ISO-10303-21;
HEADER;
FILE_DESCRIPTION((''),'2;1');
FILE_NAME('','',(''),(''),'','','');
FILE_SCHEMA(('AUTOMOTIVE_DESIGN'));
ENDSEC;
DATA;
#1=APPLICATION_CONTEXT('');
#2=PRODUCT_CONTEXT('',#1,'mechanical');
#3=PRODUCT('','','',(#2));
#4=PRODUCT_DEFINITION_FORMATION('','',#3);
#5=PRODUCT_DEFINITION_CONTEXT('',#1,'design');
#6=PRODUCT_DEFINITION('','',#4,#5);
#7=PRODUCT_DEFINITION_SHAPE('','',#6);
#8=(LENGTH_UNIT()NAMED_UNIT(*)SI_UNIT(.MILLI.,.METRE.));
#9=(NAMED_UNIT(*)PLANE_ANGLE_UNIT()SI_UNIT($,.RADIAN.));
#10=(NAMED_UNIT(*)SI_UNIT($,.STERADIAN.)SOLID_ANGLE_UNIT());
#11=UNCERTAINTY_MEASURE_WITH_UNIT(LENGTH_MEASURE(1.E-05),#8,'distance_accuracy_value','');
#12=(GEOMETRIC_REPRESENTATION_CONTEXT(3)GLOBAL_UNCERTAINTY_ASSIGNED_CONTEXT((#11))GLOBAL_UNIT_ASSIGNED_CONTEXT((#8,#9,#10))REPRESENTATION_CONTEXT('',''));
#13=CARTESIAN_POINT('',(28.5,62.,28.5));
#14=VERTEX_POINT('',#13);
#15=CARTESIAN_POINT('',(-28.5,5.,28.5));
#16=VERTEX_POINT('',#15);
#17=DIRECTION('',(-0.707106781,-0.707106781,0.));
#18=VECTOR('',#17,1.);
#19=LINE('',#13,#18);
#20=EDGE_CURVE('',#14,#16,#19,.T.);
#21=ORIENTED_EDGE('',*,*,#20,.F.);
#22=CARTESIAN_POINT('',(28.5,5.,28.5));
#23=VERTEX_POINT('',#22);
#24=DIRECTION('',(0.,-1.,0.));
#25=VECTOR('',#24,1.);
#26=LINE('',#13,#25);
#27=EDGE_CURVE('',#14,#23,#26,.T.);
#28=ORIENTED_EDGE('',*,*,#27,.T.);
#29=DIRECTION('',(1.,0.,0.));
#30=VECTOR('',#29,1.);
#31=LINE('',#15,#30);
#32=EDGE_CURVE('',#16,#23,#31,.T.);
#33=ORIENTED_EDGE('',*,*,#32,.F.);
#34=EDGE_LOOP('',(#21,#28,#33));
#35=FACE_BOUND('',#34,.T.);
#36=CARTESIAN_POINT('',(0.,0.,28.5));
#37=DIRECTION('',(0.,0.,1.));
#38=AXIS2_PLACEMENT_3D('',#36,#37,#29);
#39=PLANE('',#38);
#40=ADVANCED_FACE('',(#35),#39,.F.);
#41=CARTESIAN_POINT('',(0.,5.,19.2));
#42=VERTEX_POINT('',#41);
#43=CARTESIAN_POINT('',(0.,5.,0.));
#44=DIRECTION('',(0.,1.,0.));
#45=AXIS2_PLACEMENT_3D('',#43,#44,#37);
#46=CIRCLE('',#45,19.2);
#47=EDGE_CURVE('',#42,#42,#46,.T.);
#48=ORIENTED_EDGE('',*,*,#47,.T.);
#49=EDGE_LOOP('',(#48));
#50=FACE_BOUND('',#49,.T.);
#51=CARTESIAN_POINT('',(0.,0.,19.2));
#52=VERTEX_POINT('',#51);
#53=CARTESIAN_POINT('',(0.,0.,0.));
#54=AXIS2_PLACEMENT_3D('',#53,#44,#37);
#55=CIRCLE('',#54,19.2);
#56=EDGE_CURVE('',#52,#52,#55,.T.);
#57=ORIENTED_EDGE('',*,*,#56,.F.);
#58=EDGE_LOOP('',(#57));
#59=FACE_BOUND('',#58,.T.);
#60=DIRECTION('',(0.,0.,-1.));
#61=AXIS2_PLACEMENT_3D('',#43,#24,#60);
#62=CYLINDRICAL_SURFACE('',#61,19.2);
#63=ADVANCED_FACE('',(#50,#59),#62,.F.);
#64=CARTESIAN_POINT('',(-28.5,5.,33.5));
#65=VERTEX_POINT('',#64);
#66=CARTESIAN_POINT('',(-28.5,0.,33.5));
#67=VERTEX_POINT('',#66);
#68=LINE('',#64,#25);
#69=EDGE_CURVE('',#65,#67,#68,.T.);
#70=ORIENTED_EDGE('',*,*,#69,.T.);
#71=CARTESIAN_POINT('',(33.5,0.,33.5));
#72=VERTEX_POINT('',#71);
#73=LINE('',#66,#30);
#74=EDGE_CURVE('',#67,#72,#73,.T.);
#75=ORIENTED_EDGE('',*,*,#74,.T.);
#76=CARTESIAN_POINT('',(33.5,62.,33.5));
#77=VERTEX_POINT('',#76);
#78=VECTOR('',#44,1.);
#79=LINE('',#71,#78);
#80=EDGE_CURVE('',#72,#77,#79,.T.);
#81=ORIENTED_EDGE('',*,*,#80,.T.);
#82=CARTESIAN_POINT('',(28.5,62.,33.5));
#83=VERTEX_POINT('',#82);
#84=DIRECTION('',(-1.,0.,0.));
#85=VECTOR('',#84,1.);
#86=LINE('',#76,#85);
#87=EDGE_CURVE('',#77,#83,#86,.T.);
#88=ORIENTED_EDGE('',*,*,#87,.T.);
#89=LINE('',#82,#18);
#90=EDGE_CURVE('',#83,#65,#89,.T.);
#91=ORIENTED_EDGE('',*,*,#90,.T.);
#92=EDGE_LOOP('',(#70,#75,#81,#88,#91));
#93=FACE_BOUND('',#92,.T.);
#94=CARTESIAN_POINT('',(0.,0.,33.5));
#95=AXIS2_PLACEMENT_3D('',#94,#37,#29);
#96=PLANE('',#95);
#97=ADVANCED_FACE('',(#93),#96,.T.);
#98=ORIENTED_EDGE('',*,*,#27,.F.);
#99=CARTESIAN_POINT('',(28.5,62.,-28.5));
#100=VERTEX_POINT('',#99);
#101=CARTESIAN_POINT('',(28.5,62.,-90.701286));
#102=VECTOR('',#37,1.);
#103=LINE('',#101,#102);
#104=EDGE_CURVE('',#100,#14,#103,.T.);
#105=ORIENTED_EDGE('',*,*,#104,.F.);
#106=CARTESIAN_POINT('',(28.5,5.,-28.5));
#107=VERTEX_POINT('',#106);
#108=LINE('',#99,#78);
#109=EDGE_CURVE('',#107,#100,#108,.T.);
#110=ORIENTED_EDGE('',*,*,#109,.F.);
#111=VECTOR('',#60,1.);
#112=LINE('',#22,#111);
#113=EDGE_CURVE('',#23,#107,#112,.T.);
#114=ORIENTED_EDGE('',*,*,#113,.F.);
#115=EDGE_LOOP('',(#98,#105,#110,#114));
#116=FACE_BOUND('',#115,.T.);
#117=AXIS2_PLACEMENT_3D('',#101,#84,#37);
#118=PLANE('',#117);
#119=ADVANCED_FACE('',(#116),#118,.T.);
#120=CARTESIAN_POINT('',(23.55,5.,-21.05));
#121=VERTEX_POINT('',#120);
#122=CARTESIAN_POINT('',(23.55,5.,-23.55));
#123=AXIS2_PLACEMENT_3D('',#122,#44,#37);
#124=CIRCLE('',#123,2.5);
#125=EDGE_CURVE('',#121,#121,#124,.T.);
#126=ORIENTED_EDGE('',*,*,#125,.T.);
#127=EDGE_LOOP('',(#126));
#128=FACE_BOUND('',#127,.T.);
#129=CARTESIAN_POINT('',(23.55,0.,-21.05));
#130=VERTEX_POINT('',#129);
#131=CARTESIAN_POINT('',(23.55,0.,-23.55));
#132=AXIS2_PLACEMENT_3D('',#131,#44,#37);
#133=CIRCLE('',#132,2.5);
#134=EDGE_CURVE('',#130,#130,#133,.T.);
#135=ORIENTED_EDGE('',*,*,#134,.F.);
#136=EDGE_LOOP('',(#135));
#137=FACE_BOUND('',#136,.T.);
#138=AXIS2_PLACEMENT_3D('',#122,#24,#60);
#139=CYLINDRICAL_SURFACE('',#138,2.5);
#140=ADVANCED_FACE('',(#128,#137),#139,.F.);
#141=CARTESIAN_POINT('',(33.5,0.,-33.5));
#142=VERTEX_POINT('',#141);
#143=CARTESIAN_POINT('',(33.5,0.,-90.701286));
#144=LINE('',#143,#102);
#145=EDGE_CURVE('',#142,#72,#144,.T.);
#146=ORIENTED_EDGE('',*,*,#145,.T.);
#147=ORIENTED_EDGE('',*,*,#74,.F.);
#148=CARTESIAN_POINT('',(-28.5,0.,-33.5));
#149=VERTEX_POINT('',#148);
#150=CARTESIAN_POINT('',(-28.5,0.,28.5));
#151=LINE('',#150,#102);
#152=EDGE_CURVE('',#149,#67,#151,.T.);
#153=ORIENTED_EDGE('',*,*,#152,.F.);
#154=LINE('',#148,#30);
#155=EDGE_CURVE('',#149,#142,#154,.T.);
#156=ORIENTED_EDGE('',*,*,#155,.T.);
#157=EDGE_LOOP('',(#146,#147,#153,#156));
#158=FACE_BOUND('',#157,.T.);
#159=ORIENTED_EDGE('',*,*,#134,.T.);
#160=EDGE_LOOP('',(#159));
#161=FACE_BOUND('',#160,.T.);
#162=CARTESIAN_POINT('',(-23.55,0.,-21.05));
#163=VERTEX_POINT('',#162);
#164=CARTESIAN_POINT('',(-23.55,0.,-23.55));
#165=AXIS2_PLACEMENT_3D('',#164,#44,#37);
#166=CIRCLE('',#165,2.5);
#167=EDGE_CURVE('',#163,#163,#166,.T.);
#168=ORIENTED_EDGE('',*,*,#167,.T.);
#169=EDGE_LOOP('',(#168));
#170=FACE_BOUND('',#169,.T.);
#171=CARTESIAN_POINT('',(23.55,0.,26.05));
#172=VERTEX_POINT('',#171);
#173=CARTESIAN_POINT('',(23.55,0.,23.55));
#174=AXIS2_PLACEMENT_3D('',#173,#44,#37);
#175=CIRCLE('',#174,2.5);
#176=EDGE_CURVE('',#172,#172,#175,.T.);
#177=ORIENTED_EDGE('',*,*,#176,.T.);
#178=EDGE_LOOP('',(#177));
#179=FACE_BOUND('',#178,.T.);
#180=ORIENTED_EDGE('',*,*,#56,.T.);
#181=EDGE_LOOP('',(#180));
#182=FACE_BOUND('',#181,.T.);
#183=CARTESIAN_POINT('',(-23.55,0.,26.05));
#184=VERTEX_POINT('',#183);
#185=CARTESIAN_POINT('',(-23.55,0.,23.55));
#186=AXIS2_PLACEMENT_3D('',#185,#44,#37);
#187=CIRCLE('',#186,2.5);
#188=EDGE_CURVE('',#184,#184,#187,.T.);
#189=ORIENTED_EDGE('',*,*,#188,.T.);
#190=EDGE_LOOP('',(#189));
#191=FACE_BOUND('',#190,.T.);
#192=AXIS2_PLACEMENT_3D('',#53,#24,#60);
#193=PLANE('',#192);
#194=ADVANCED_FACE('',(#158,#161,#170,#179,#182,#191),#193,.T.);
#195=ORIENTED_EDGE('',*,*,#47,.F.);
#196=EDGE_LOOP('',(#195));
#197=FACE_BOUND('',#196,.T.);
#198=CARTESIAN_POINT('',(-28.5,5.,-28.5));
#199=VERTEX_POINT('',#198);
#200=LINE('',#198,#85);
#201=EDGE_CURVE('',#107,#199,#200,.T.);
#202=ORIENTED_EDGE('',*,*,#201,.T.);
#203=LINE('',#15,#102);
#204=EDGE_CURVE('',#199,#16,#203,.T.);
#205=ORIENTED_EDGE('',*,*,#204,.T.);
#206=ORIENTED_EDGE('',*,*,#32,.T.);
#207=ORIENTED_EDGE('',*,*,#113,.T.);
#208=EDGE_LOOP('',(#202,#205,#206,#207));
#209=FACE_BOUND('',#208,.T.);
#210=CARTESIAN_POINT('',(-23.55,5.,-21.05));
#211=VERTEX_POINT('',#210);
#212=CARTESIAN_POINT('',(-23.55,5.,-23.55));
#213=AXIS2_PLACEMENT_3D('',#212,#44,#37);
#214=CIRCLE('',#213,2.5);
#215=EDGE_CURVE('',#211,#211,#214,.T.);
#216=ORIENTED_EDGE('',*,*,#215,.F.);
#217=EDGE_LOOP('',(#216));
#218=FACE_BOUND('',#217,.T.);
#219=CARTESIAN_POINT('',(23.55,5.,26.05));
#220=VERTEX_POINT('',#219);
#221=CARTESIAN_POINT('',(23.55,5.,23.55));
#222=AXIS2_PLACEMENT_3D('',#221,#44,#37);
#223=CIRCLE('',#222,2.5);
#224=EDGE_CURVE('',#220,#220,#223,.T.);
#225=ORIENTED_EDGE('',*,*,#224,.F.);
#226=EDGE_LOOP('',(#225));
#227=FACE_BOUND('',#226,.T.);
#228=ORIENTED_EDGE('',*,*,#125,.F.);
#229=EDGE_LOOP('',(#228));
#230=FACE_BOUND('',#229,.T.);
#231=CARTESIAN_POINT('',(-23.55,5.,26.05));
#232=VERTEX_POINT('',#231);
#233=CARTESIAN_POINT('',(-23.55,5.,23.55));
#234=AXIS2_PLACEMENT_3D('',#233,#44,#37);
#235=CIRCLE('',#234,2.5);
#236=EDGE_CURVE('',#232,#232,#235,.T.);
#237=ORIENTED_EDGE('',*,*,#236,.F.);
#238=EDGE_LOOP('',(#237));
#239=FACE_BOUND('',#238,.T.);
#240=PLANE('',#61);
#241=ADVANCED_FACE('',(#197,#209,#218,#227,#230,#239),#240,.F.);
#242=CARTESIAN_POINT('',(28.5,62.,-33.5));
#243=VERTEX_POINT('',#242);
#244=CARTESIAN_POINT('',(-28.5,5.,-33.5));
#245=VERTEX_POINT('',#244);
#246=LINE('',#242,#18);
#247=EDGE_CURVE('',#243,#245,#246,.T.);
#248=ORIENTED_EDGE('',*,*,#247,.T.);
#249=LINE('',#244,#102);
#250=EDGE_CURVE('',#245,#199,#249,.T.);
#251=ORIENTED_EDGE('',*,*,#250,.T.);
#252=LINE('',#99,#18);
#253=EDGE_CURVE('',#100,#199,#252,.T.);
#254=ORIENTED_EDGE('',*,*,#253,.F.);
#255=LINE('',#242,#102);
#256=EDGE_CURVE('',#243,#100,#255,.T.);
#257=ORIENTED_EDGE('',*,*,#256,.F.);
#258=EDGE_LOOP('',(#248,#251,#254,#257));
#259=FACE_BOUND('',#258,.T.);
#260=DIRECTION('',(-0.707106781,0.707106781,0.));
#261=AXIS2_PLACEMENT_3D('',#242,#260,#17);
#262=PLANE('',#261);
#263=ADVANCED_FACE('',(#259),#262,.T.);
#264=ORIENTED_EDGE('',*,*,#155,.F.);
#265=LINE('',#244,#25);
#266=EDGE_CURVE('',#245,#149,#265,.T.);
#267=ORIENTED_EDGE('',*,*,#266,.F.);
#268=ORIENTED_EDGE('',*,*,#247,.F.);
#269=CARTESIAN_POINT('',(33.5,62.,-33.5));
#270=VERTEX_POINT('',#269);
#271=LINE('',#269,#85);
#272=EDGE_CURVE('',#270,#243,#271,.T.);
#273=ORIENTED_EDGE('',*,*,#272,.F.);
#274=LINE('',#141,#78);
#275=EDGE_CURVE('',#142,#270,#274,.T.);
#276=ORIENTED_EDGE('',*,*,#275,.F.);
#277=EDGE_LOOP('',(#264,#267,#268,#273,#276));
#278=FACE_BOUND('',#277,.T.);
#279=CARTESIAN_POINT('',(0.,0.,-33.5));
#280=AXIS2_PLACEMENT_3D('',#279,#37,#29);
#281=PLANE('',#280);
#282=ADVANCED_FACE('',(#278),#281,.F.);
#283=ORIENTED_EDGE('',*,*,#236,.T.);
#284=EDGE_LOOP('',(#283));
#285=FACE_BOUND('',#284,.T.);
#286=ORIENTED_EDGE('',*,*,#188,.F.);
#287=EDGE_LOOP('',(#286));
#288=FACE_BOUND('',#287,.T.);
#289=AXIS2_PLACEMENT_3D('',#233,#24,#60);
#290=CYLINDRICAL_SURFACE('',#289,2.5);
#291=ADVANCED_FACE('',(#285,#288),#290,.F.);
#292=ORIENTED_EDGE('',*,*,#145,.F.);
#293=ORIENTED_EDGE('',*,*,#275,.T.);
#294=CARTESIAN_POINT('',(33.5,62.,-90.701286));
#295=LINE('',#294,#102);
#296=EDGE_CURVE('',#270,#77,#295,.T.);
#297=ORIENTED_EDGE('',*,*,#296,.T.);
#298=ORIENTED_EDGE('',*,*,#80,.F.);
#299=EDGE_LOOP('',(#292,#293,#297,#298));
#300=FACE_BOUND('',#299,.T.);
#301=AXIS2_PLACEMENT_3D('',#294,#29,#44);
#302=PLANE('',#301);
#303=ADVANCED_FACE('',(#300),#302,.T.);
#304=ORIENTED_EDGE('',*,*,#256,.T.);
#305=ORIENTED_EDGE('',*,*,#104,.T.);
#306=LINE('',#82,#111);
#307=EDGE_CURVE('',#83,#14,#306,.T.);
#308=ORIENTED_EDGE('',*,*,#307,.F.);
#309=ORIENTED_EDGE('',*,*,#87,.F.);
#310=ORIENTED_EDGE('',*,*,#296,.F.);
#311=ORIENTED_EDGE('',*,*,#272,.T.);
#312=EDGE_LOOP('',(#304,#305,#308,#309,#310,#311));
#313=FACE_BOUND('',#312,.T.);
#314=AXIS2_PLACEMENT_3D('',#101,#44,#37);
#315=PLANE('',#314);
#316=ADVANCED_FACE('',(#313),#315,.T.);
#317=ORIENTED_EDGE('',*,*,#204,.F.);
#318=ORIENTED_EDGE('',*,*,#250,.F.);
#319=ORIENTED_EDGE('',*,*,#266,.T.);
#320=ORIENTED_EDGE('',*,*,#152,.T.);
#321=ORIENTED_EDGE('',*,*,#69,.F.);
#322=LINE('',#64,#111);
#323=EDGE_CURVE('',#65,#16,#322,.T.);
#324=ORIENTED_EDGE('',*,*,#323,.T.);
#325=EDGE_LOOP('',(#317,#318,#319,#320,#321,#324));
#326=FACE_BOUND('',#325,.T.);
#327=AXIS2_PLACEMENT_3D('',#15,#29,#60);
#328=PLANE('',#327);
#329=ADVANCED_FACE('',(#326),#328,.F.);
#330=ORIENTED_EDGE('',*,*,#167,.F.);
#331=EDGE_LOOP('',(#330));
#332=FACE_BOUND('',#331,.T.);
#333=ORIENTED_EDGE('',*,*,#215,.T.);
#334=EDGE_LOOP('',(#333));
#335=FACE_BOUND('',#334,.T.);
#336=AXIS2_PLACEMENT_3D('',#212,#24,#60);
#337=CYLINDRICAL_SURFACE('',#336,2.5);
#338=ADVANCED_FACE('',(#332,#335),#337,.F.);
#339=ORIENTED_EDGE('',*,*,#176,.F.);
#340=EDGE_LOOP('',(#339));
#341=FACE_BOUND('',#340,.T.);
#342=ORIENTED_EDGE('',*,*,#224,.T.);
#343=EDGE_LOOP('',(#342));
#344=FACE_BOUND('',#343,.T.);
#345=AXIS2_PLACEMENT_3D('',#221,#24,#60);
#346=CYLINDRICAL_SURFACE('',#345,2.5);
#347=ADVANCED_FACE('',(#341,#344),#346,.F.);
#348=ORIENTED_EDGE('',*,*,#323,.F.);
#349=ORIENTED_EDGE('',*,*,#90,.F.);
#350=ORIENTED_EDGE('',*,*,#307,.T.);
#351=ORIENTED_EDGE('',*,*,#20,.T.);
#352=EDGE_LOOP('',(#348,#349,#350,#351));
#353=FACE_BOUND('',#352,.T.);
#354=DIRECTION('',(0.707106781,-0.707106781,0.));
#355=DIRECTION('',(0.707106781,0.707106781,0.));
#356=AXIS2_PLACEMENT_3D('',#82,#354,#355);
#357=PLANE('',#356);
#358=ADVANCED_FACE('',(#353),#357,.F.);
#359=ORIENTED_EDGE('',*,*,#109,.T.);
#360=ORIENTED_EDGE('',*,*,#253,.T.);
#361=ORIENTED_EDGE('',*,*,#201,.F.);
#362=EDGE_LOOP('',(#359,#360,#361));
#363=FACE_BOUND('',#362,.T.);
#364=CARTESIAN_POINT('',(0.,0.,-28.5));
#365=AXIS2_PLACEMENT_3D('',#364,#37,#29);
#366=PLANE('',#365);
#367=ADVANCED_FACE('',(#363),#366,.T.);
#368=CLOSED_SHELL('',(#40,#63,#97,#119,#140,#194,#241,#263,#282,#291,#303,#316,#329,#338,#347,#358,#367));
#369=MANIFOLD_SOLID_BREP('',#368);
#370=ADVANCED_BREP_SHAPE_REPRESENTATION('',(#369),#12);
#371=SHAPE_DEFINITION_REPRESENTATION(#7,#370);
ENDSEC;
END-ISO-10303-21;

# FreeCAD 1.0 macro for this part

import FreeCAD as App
import Part
import Sketcher

V = App.Vector

doc = App.newDocument("Part")
body = doc.addObject("PartDesign::Body", "Body")

# Sketch on XZ plane
sketch1 = doc.addObject("Sketcher::SketchObject", "Sketch")
body.addObject(sketch1)
sketch1.AttachmentSupport = (doc.XZ_Plane, [""])
sketch1.MapMode = "FlatFace"
sketch1.addGeometry([
    Part.LineSegment(V(-28.5, -28.5, 0), V(-28.5, 28.5, 0)),  # 0
    Part.LineSegment(V(-28.5, 28.5, 0), V(28.5, 28.5, 0)),  # 1
    Part.LineSegment(V(28.5, 28.5, 0), V(28.5, -28.5, 0)),  # 2
    Part.LineSegment(V(28.5, -28.5, 0), V(-28.5, -28.5, 0)),  # 3
    Part.Circle(V(-23.6, 23.6, 0), V(0, 0, 1), 2.5),  # 4
    Part.Circle(V(23.6, 23.6, 0), V(0, 0, 1), 2.5),  # 5
    Part.Circle(V(-23.6, -23.6, 0), V(0, 0, 1), 2.5),  # 6
    Part.Circle(V(0, 0, 0), V(0, 0, 1), 19.2),  # 7
    Part.Circle(V(23.6, -23.6, 0), V(0, 0, 1), 2.5),  # 8
], False)
sketch1.addConstraint([
    Sketcher.Constraint("Coincident", 0, 2, 1, 1),
    Sketcher.Constraint("Coincident", 1, 2, 2, 1),
    Sketcher.Constraint("Coincident", 2, 2, 3, 1),
    Sketcher.Constraint("Coincident", 3, 2, 0, 1),
    Sketcher.Constraint("Vertical", 0),
    Sketcher.Constraint("Horizontal", 1),
    Sketcher.Constraint("Vertical", 2),
    Sketcher.Constraint("Horizontal", 3),
    Sketcher.Constraint("Coincident", 7, 3, -1, 1),
    Sketcher.Constraint("Equal", 4, 5),
    Sketcher.Constraint("Equal", 5, 6),
    Sketcher.Constraint("Equal", 6, 8),
    Sketcher.Constraint("Symmetric", 5, 3, 6, 3, -1, 1),
    Sketcher.Constraint("Symmetric", 4, 3, 8, 3, -1, 1),
    Sketcher.Constraint("Symmetric", 0, 2, 2, 2, -1, 1),
    Sketcher.Constraint("Symmetric", 4, 3, 5, 3, -2),
    Sketcher.Constraint("Equal", 3, 0),
    Sketcher.Constraint("Diameter", 4, 5.0),
    Sketcher.Constraint("Diameter", 7, 38.4),
    Sketcher.Constraint("DistanceX", 1, 1, 1, 2, 57.0),
    Sketcher.Constraint("DistanceX", 4, 3, 5, 3, 47.1),
    Sketcher.Constraint("DistanceY", 6, 3, 4, 3, 47.1),
])
pad1 = doc.addObject("PartDesign::Pad", "Pad")
body.addObject(pad1)
pad1.Profile = sketch1
pad1.Length = 5
pad1.Reversed = True

# Sketch on XY plane
sketch2 = doc.addObject("Sketcher::SketchObject", "Sketch001")
body.addObject(sketch2)
sketch2.AttachmentSupport = (doc.XY_Plane, [""])
sketch2.MapMode = "FlatFace"
sketch2.AttachmentOffset = App.Placement(V(0, 0, 28.5), App.Rotation())
sketch2.addGeometry([
    Part.LineSegment(V(28, 62, 0), V(28, 0, 0)),
    Part.LineSegment(V(28, 0, 0), V(34, 0, 0)),
    Part.LineSegment(V(34, 0, 0), V(34, 62, 0)),
    Part.LineSegment(V(34, 62, 0), V(28, 62, 0)),
], False)
sketch2.addConstraint([
    Sketcher.Constraint("Coincident", 0, 2, 1, 1),
    Sketcher.Constraint("Coincident", 1, 2, 2, 1),
    Sketcher.Constraint("Coincident", 2, 2, 3, 1),
    Sketcher.Constraint("Coincident", 3, 2, 0, 1),
    Sketcher.Constraint("Vertical", 0),
    Sketcher.Constraint("Horizontal", 1),
    Sketcher.Constraint("Vertical", 2),
    Sketcher.Constraint("Horizontal", 3),
    Sketcher.Constraint("PointOnObject", 0, 2, -1),
    Sketcher.Constraint("DistanceX", 1, 1, 1, 2, 5.0),
    Sketcher.Constraint("DistanceY", 0, 2, 0, 1, 62.0),
    Sketcher.Constraint("DistanceX", -1, 1, 0, 2, 28.5),
])
pad2 = doc.addObject("PartDesign::Pad", "Pad001")
body.addObject(pad2)
pad2.Profile = sketch2
pad2.Length = 57
pad2.Reversed = True

# Sketch on XY plane
sketch3 = doc.addObject("Sketcher::SketchObject", "Sketch002")
body.addObject(sketch3)
sketch3.AttachmentSupport = (doc.XY_Plane, [""])
sketch3.MapMode = "FlatFace"
sketch3.AttachmentOffset = App.Placement(V(0, 0, 28.5), App.Rotation())
sketch3.addGeometry([
    Part.LineSegment(V(28, 62, 0), V(-28, 5, 0)),  # 0
    Part.LineSegment(V(-28, 5, 0), V(-28, 0, 0)),  # 1
    Part.LineSegment(V(-28, 0, 0), V(34, 0, 0)),  # 2
    Part.LineSegment(V(34, 0, 0), V(34, 62, 0)),  # 3
    Part.LineSegment(V(34, 62, 0), V(28, 62, 0)),  # 4
], False)
sketch3.addConstraint([
    Sketcher.Constraint("Coincident", 0, 2, 1, 1),
    Sketcher.Constraint("Coincident", 1, 2, 2, 1),
    Sketcher.Constraint("Coincident", 2, 2, 3, 1),
    Sketcher.Constraint("Coincident", 3, 2, 4, 1),
    Sketcher.Constraint("Coincident", 4, 2, 0, 1),
    Sketcher.Constraint("Vertical", 1),
    Sketcher.Constraint("Horizontal", 2),
    Sketcher.Constraint("Vertical", 3),
    Sketcher.Constraint("Horizontal", 4),
    Sketcher.Constraint("PointOnObject", 1, 2, -1),
    Sketcher.Constraint("Equal", 4, 1),
    Sketcher.Constraint("Equal", 2, 3),
    Sketcher.Constraint("DistanceX", 2, 1, 2, 2, 62.0),
    Sketcher.Constraint("DistanceX", 4, 2, 4, 1, 5.0),
    Sketcher.Constraint("DistanceX", 0, 2, -1, 1, 28.5),
])
pad3 = doc.addObject("PartDesign::Pad", "Pad002")
body.addObject(pad3)
pad3.Profile = sketch3
pad3.Length = 5

# Sketch on XY plane
sketch4 = doc.addObject("Sketcher::SketchObject", "Sketch003")
body.addObject(sketch4)
sketch4.AttachmentSupport = (doc.XY_Plane, [""])
sketch4.MapMode = "FlatFace"
sketch4.AttachmentOffset = App.Placement(V(0, 0, -28.5), App.Rotation())
sketch4.addGeometry([
    Part.LineSegment(V(28, 62, 0), V(-28, 5, 0)),  # 0
    Part.LineSegment(V(-28, 5, 0), V(-28, 0, 0)),  # 1
    Part.LineSegment(V(-28, 0, 0), V(34, 0, 0)),  # 2
    Part.LineSegment(V(34, 0, 0), V(34, 62, 0)),  # 3
    Part.LineSegment(V(34, 62, 0), V(28, 62, 0)),  # 4
], False)
sketch4.addConstraint([
    Sketcher.Constraint("Coincident", 0, 2, 1, 1),
    Sketcher.Constraint("Coincident", 1, 2, 2, 1),
    Sketcher.Constraint("Coincident", 2, 2, 3, 1),
    Sketcher.Constraint("Coincident", 3, 2, 4, 1),
    Sketcher.Constraint("Coincident", 4, 2, 0, 1),
    Sketcher.Constraint("Vertical", 1),
    Sketcher.Constraint("Horizontal", 2),
    Sketcher.Constraint("Vertical", 3),
    Sketcher.Constraint("Horizontal", 4),
    Sketcher.Constraint("PointOnObject", 1, 2, -1),
    Sketcher.Constraint("Equal", 4, 1),
    Sketcher.Constraint("Equal", 2, 3),
    Sketcher.Constraint("DistanceX", 2, 1, 2, 2, 62.0),
    Sketcher.Constraint("DistanceX", 4, 2, 4, 1, 5.0),
    Sketcher.Constraint("DistanceX", 0, 2, -1, 1, 28.5),
])
pad4 = doc.addObject("PartDesign::Pad", "Pad003")
body.addObject(pad4)
pad4.Profile = sketch4
pad4.Length = 5
pad4.Reversed = True

doc.recompute()
